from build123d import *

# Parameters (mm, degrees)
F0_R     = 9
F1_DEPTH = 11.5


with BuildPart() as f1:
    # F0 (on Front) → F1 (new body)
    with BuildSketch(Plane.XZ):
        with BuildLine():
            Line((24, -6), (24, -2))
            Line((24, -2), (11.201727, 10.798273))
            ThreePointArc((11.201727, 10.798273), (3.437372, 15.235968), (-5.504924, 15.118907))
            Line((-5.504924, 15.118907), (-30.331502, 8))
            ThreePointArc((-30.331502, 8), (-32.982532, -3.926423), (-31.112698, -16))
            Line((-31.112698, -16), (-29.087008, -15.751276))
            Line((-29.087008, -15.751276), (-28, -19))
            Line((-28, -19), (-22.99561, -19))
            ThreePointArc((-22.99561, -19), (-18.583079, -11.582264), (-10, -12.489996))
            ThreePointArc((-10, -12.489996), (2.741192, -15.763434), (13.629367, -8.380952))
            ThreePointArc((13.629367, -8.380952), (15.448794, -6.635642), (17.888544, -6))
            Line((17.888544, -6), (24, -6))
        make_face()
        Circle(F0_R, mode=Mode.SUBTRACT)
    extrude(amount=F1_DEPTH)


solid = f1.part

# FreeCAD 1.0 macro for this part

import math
import FreeCAD as App
import Part
import Sketcher
from FreeCAD import Vector
Q = App.Units.Quantity

doc = App.newDocument("Part")
params = doc.addObject("Spreadsheet::Sheet", "Params")
for row, (alias, value) in enumerate([
    ("sketch1_diameter", "18 mm"),
    ("sketch1_radius", "17 mm"),
    ("sketch1_radius2", "8 mm"),
    ("sketch1_radius3", "16.000001 mm"),
    ("sketch1_radius4", "5 mm"),
    ("pad1_length", "11.5 mm"),
], start=1):
    params.set(f"A{row}", alias)
    params.set(f"B{row}", "=" + value)
    params.setAlias(f"B{row}", alias)

body = doc.addObject("PartDesign::Body", "Body")

# Sketch on XZ plane
sketch1 = body.newObject("Sketcher::SketchObject", "Sketch")
sketch1.AttachmentSupport = (doc.getObject("XZ_Plane"), [""])
sketch1.MapMode = "FlatFace"
sketch1.addGeometry(Part.LineSegment(Vector(24, -6, 0), Vector(24, -2, 0)), False)
sketch1.addGeometry(Part.LineSegment(Vector(24, -2, 0), Vector(11.2, 10.8, 0)), False)
sketch1.addGeometry(Part.ArcOfCircle(Part.Circle(Vector(-0.8, -1.2, 0), Vector(0, 0, 1), 17), math.radians(45), math.radians(106)), False)
sketch1.addGeometry(Part.LineSegment(Vector(-5.5, 15.1, 0), Vector(-30.3, 8, 0)), False)
sketch1.addGeometry(Part.ArcOfCircle(Part.Circle(Vector(0, -5, 0), Vector(0, 0, 1), 33), math.radians(157), math.radians(199)), False)
sketch1.addGeometry(Part.LineSegment(Vector(-31.1, -16, 0), Vector(-29.1, -15.8, 0)), False)
sketch1.addGeometry(Part.LineSegment(Vector(-29.1, -15.8, 0), Vector(-28, -19, 0)), False)
sketch1.addGeometry(Part.LineSegment(Vector(-28, -19, 0), Vector(-23, -19, 0)), False)
sketch1.addGeometry(Part.ArcOfCircle(Part.Circle(Vector(-15, -18.7, 0), Vector(0, 0, 1), 8), math.radians(51), math.radians(182)), False)
sketch1.addGeometry(Part.ArcOfCircle(Part.Circle(Vector(0, 0, 0), Vector(0, 0, 1), 16), math.radians(-129), math.radians(-32)), False)
sketch1.addGeometry(Part.ArcOfCircle(Part.Circle(Vector(17.9, -11, 0), Vector(0, 0, 1), 5), math.radians(90), math.radians(148)), False)
sketch1.addGeometry(Part.LineSegment(Vector(17.9, -6, 0), Vector(24, -6, 0)), False)
sketch1.addGeometry(Part.Circle(Vector(0, 0, 0), Vector(0, 0, 1), 9), False)
sketch1.addConstraint(Sketcher.Constraint("Coincident", 0, 2, 1, 1))
sketch1.addConstraint(Sketcher.Constraint("Tangent", 1, 2, 2, 1))
sketch1.addConstraint(Sketcher.Constraint("Tangent", 2, 2, 3, 1))
sketch1.addConstraint(Sketcher.Constraint("Coincident", 3, 2, 4, 1))
sketch1.addConstraint(Sketcher.Constraint("Coincident", 4, 2, 5, 1))
sketch1.addConstraint(Sketcher.Constraint("Coincident", 5, 2, 6, 1))
sketch1.addConstraint(Sketcher.Constraint("Coincident", 6, 2, 7, 1))
sketch1.addConstraint(Sketcher.Constraint("Coincident", 7, 2, 8, 2))
sketch1.addConstraint(Sketcher.Constraint("Tangent", 8, 1, 9, 1))
sketch1.addConstraint(Sketcher.Constraint("Tangent", 9, 2, 10, 2))
sketch1.addConstraint(Sketcher.Constraint("Tangent", 10, 1, 11, 1))
sketch1.addConstraint(Sketcher.Constraint("Coincident", 11, 2, 0, 1))
sketch1.addConstraint(Sketcher.Constraint("Vertical", 0))
sketch1.addConstraint(Sketcher.Constraint("Horizontal", 7))
sketch1.addConstraint(Sketcher.Constraint("Horizontal", 11))
sketch1.addConstraint(Sketcher.Constraint("Coincident", 9, 3, -1, 1))
sketch1.addConstraint(Sketcher.Constraint("Coincident", 12, 3, -1, 1))
sketch1.addConstraint(Sketcher.Constraint("Diameter", 12, Q("18 mm")))
sketch1.addConstraint(Sketcher.Constraint("Radius", 2, Q("17 mm")))
sketch1.addConstraint(Sketcher.Constraint("Radius", 8, Q("8 mm")))
sketch1.addConstraint(Sketcher.Constraint("Radius", 9, Q("16.000001 mm")))
sketch1.addConstraint(Sketcher.Constraint("Radius", 10, Q("5 mm")))
sketch1.addConstraint(Sketcher.Constraint("DistanceY", 0, 1, 0, 2, Q("4 mm")))
sketch1.addConstraint(Sketcher.Constraint("Angle", 1, Q("135 deg")))
sketch1.addConstraint(Sketcher.Constraint("Angle", 3, Q("-163.999999 deg")))
sketch1.addConstraint(Sketcher.Constraint("Angle", 5, Q("7.000015 deg")))
sketch1.addConstraint(Sketcher.Constraint("DistanceY", 4, 3, -1, 1, Q("4.999999 mm")))
sketch1.addConstraint(Sketcher.Constraint("DistanceX", 8, 3, -1, 1, Q("15 mm")))
sketch1.addConstraint(Sketcher.Constraint("DistanceY", 10, 3, -1, 1, Q("11 mm")))
sketch1.addConstraint(Sketcher.Constraint("DistanceX", -1, 1, 0, 2, Q("24 mm")))
sketch1.addConstraint(Sketcher.Constraint("DistanceY", -1, 1, 3, 2, Q("8 mm")))
sketch1.addConstraint(Sketcher.Constraint("DistanceY", 4, 2, -1, 1, Q("16 mm")))
sketch1.addConstraint(Sketcher.Constraint("DistanceX", 6, 2, -1, 1, Q("28 mm")))
sketch1.addConstraint(Sketcher.Constraint("DistanceY", 6, 2, -1, 1, Q("19 mm")))
sketch1.addConstraint(Sketcher.Constraint("Angle", 6, Q("-71.499998 deg")))
sketch1.addConstraint(Sketcher.Constraint("Radius", 4, Q("33.000002 mm")))
sketch1.addConstraint(Sketcher.Constraint("DistanceX", 4, 2, -1, 1, Q("31.112698 mm")))
sketch1.setExpression("Constraints[17]", "Params.sketch1_diameter")
sketch1.setExpression("Constraints[18]", "Params.sketch1_radius")
sketch1.setExpression("Constraints[19]", "Params.sketch1_radius2")
sketch1.setExpression("Constraints[20]", "Params.sketch1_radius3")
sketch1.setExpression("Constraints[21]", "Params.sketch1_radius4")
pad1 = body.newObject("PartDesign::Pad", "Pad")
pad1.Profile = sketch1
pad1.setExpression("Length", "Params.pad1_length")

doc.recompute()
